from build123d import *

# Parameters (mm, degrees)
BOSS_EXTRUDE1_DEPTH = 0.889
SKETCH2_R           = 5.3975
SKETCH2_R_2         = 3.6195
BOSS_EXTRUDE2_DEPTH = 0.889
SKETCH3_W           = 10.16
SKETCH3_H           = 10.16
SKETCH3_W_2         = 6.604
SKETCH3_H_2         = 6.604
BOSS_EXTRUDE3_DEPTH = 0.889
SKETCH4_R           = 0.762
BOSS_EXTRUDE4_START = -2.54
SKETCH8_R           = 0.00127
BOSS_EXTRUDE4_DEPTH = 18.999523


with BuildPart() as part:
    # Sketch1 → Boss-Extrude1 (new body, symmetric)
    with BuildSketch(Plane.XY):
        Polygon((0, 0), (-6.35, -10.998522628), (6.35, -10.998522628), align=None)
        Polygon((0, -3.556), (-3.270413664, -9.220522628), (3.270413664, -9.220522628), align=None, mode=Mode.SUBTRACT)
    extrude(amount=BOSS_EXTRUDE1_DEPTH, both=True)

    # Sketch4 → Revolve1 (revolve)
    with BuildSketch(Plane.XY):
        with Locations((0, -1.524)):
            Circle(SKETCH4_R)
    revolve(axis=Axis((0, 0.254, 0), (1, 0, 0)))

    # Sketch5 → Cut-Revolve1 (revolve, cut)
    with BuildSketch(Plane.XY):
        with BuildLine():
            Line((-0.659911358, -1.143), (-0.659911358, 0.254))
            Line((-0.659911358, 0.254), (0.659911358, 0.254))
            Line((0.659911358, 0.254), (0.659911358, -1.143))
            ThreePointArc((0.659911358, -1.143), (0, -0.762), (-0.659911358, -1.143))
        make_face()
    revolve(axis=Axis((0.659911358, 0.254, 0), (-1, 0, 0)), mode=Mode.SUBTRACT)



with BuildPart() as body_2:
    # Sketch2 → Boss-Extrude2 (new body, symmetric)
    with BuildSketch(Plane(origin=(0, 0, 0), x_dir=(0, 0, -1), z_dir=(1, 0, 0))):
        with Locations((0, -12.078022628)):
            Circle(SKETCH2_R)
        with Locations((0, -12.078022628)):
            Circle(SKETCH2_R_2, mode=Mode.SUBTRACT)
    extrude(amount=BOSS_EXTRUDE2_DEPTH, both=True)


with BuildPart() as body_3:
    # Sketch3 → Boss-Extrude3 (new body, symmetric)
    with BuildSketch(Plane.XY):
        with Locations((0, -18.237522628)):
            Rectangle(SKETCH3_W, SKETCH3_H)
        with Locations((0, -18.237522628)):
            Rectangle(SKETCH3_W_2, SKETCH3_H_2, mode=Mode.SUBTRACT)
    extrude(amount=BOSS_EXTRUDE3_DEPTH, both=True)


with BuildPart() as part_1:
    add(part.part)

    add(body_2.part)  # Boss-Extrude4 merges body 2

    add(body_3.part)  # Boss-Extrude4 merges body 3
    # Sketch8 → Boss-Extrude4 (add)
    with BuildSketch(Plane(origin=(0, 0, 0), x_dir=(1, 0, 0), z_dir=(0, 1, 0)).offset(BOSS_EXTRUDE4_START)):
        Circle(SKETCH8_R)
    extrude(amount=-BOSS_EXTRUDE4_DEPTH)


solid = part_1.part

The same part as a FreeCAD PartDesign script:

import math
import FreeCAD as App
import Part
import Sketcher

V = App.Vector
Q = App.Units.Quantity

doc = App.newDocument("Part")
body = doc.addObject("PartDesign::Body", "Body")

sketch1 = doc.addObject("Sketcher::SketchObject", "Sketch")
body.addObject(sketch1)
sketch1.AttachmentSupport = (doc.XY_Plane, [""])
sketch1.MapMode = "FlatFace"
sketch1.addGeometry([
    Part.LineSegment(V(0, 0, 0), V(-6.35, -10.998523, 0)),
    Part.LineSegment(V(-6.35, -10.998523, 0), V(6.35, -10.998523, 0)),
    Part.LineSegment(V(6.35, -10.998523, 0), V(0, 0, 0)),
    Part.LineSegment(V(-3.270414, -9.220523, 0), V(0, -3.556, 0)),
    Part.LineSegment(V(0, -3.556, 0), V(3.270414, -9.220523, 0)),
    Part.LineSegment(V(3.270414, -9.220523, 0), V(-3.270414, -9.220523, 0)),
], False)
sketch1.addConstraint([
    Sketcher.Constraint("Coincident", 0, 2, 1, 1),
    Sketcher.Constraint("Coincident", 1, 2, 2, 1),
    Sketcher.Constraint("Coincident", 2, 2, 0, 1),
    Sketcher.Constraint("Coincident", 3, 2, 4, 1),
    Sketcher.Constraint("Coincident", 4, 2, 5, 1),
    Sketcher.Constraint("Coincident", 5, 2, 3, 1),
    Sketcher.Constraint("Horizontal", 1),
    Sketcher.Constraint("Horizontal", 5),
    Sketcher.Constraint("Coincident", 2, 2, -1, 1),
    Sketcher.Constraint("PointOnObject", 3, 2, -2),
    Sketcher.Constraint("Parallel", 0, 3),
    Sketcher.Constraint("Parallel", 2, 4),
    Sketcher.Constraint("Equal", 0, 2),
    Sketcher.Constraint("DistanceX", 1, 1, 1, 2, Q("0.5 in")),
    Sketcher.Constraint("Angle", 0, Q("-120 deg")),
    Sketcher.Constraint("DistanceY", 3, 2, -1, 1, Q("0.14 in")),
    Sketcher.Constraint("DistanceY", 1, 2, 4, 2, Q("0.07 in")),
])
pad1 = doc.addObject("PartDesign::Pad", "Pad")
body.addObject(pad1)
pad1.Profile = sketch1
pad1.Length = Q("0.07 in")
pad1.Midplane = True

sketch2 = doc.addObject("Sketcher::SketchObject", "Sketch001")
body.addObject(sketch2)
sketch2.AttachmentSupport = (doc.XY_Plane, [""])
sketch2.MapMode = "FlatFace"
sketch2.addGeometry(Part.Circle(V(0, -1.524, 0), V(0, 0, 1), 0.762), False)
sketch2.addGeometry(Part.LineSegment(V(0, 0.254, 0), V(10, 0.254, 0)), True)
sketch2.addConstraint([
    Sketcher.Constraint("Horizontal", 1),
    Sketcher.Constraint("PointOnObject", 0, 3, -2),
    Sketcher.Constraint("PointOnObject", 1, 1, -2),
    Sketcher.Constraint("Diameter", 0, Q("0.06 in")),
    Sketcher.Constraint("DistanceY", 0, 3, -1, 1, Q("0.06 in")),
    Sketcher.Constraint("DistanceY", -1, 1, 1, 1, Q("0.01 in")),
    Sketcher.Constraint("DistanceX", 1, 1, 1, 2, Q("10 mm")),
])
revolution = doc.addObject("PartDesign::Revolution", "Revolution")
body.addObject(revolution)
revolution.Profile = sketch2
revolution.ReferenceAxis = (sketch2, ["Axis0"])
revolution.Angle = 360

sketch3 = doc.addObject("Sketcher::SketchObject", "Sketch002")
body.addObject(sketch3)
sketch3.AttachmentSupport = (doc.XY_Plane, [""])
sketch3.MapMode = "FlatFace"
sketch3.addGeometry([
    Part.LineSegment(V(-0.659911, 0.254, 0), V(-0.659911, -1.143, 0)),
    Part.ArcOfCircle(Part.Circle(V(0, -1.524, 0), V(0, 0, 1), 0.762), math.radians(30), math.radians(150)),
    Part.LineSegment(V(0.659911, -1.143, 0), V(0.659911, 0.254, 0)),
    Part.LineSegment(V(0.659911, 0.254, 0), V(-0.659911, 0.254, 0)),
], False)
sketch3.addGeometry(Part.LineSegment(V(0.659911, 0.254, 0), V(-0.659911, 0.254, 0)), True)
sketch3.addConstraint([
    Sketcher.Constraint("Coincident", 0, 2, 1, 2),
    Sketcher.Constraint("Coincident", 1, 1, 2, 1),
    Sketcher.Constraint("Coincident", 2, 2, 3, 1),
    Sketcher.Constraint("Coincident", 3, 2, 0, 1),
    Sketcher.Constraint("Vertical", 0),
    Sketcher.Constraint("Vertical", 2),
    Sketcher.Constraint("Horizontal", 3),
    Sketcher.Constraint("Horizontal", 4),
    Sketcher.Constraint("Coincident", 4, 1, 2, 2),
    Sketcher.Constraint("Symmetric", 0, 2, 1, 1, -2),
    Sketcher.Constraint("Vertical", 0, 2, 4, 2),
    Sketcher.Constraint("Radius", 1, Q("0.03 in")),
    Sketcher.Constraint("DistanceY", 0, 2, 0, 1, Q("0.055 in")),
    Sketcher.Constraint("DistanceY", 1, 3, -1, 1, Q("0.06 in")),
    Sketcher.Constraint("DistanceY", -1, 1, 2, 2, Q("0.01 in")),
])
groove = doc.addObject("PartDesign::Groove", "Groove")
body.addObject(groove)
groove.Profile = sketch3
groove.ReferenceAxis = (sketch3, ["Axis0"])
groove.Angle = 360
body2 = doc.addObject("PartDesign::Body", "Body001")

sketch4 = doc.addObject("Sketcher::SketchObject", "Sketch003")
body2.addObject(sketch4)
sketch4.AttachmentSupport = (doc.getObject("YZ_Plane001"), [""])
sketch4.MapMode = "FlatFace"
sketch4.addGeometry([
    Part.Circle(V(-12.078023, 0, 0), V(0, 0, 1), 5.3975),
    Part.Circle(V(-12.078023, 0, 0), V(0, 0, 1), 3.6195),
], False)
sketch4.addConstraint([
    Sketcher.Constraint("Coincident", 1, 3, 0, 3),
    Sketcher.Constraint("PointOnObject", 0, 3, -1),
    Sketcher.Constraint("Diameter", 0, Q("0.425 in")),
    Sketcher.Constraint("Diameter", 1, Q("0.285 in")),
    Sketcher.Constraint("DistanceX", 0, 3, -1, 1, Q("12.078023 mm")),
])
pad2 = doc.addObject("PartDesign::Pad", "Pad001")
body2.addObject(pad2)
pad2.Profile = sketch4
pad2.Length = Q("0.07 in")
pad2.Midplane = True
body3 = doc.addObject("PartDesign::Body", "Body002")

sketch5 = doc.addObject("Sketcher::SketchObject", "Sketch004")
body3.addObject(sketch5)
sketch5.AttachmentSupport = (doc.getObject("XY_Plane002"), [""])
sketch5.MapMode = "FlatFace"
sketch5.addGeometry([
    Part.LineSegment(V(-5.08, -13.157523, 0), V(-5.08, -23.317523, 0)),
    Part.LineSegment(V(-5.08, -23.317523, 0), V(5.08, -23.317523, 0)),
    Part.LineSegment(V(5.08, -23.317523, 0), V(5.08, -13.157523, 0)),
    Part.LineSegment(V(5.08, -13.157523, 0), V(-5.08, -13.157523, 0)),
    Part.LineSegment(V(3.302, -21.539523, 0), V(-3.302, -21.539523, 0)),
    Part.LineSegment(V(-3.302, -21.539523, 0), V(-3.302, -14.935523, 0)),
    Part.LineSegment(V(-3.302, -14.935523, 0), V(3.302, -14.935523, 0)),
    Part.LineSegment(V(3.302, -14.935523, 0), V(3.302, -21.539523, 0)),
], False)
sketch5.addConstraint([
    Sketcher.Constraint("Coincident", 0, 2, 1, 1),
    Sketcher.Constraint("Coincident", 1, 2, 2, 1),
    Sketcher.Constraint("Coincident", 2, 2, 3, 1),
    Sketcher.Constraint("Coincident", 3, 2, 0, 1),
    Sketcher.Constraint("Coincident", 4, 2, 5, 1),
    Sketcher.Constraint("Coincident", 5, 2, 6, 1),
    Sketcher.Constraint("Coincident", 6, 2, 7, 1),
    Sketcher.Constraint("Coincident", 7, 2, 4, 1),
    Sketcher.Constraint("Vertical", 0),
    Sketcher.Constraint("Horizontal", 1),
    Sketcher.Constraint("Vertical", 2),
    Sketcher.Constraint("Horizontal", 3),
    Sketcher.Constraint("Horizontal", 4),
    Sketcher.Constraint("Vertical", 5),
    Sketcher.Constraint("Horizontal", 6),
    Sketcher.Constraint("Vertical", 7),
    Sketcher.Constraint("Equal", 3, 0),
    Sketcher.Constraint("Equal", 6, 5),
    Sketcher.Constraint("DistanceX", 1, 1, 1, 2, Q("0.4 in")),
    Sketcher.Constraint("DistanceX", 4, 2, 4, 1, Q("0.26 in")),
    Sketcher.Constraint("DistanceX", 0, 2, -1, 1, Q("0.2 in")),
    Sketcher.Constraint("DistanceX", 4, 2, -1, 1, Q("0.13 in")),
    Sketcher.Constraint("DistanceY", 0, 2, 4, 2, Q("0.07 in")),
    Sketcher.Constraint("DistanceY", 0, 2, -1, 1, Q("23.317523 mm")),
])
pad3 = doc.addObject("PartDesign::Pad", "Pad002")
body3.addObject(pad3)
pad3.Profile = sketch5
pad3.Length = Q("0.07 in")
pad3.Midplane = True
body.AllowCompound = True
doc.recompute()

boolean = doc.addObject("PartDesign::Boolean", "Boolean")
body.addObject(boolean)
boolean.Type = "Fuse"
boolean.addObjects([body2])
doc.recompute()

boolean2 = doc.addObject("PartDesign::Boolean", "Boolean001")
body.addObject(boolean2)
boolean2.Type = "Fuse"
boolean2.addObjects([body3])

sketch6 = doc.addObject("Sketcher::SketchObject", "Sketch005")
body.addObject(sketch6)
sketch6.AttachmentSupport = (doc.XZ_Plane, [""])
sketch6.MapMode = "FlatFace"
sketch6.AttachmentOffset = App.Placement(V(0, 0, 0.1 * 25.4), App.Rotation())
sketch6.addGeometry(Part.Circle(V(0, 0, 0), V(0, 0, 1), 0.00127), False)
sketch6.addConstraint([
    Sketcher.Constraint("Coincident", 0, 3, -1, 1),
    Sketcher.Constraint("Diameter", 0, Q("0.0001 in")),
])
pad4 = doc.addObject("PartDesign::Pad", "Pad003")
body.addObject(pad4)
pad4.Profile = sketch6
pad4.Length = 18.999523

doc.recompute()
